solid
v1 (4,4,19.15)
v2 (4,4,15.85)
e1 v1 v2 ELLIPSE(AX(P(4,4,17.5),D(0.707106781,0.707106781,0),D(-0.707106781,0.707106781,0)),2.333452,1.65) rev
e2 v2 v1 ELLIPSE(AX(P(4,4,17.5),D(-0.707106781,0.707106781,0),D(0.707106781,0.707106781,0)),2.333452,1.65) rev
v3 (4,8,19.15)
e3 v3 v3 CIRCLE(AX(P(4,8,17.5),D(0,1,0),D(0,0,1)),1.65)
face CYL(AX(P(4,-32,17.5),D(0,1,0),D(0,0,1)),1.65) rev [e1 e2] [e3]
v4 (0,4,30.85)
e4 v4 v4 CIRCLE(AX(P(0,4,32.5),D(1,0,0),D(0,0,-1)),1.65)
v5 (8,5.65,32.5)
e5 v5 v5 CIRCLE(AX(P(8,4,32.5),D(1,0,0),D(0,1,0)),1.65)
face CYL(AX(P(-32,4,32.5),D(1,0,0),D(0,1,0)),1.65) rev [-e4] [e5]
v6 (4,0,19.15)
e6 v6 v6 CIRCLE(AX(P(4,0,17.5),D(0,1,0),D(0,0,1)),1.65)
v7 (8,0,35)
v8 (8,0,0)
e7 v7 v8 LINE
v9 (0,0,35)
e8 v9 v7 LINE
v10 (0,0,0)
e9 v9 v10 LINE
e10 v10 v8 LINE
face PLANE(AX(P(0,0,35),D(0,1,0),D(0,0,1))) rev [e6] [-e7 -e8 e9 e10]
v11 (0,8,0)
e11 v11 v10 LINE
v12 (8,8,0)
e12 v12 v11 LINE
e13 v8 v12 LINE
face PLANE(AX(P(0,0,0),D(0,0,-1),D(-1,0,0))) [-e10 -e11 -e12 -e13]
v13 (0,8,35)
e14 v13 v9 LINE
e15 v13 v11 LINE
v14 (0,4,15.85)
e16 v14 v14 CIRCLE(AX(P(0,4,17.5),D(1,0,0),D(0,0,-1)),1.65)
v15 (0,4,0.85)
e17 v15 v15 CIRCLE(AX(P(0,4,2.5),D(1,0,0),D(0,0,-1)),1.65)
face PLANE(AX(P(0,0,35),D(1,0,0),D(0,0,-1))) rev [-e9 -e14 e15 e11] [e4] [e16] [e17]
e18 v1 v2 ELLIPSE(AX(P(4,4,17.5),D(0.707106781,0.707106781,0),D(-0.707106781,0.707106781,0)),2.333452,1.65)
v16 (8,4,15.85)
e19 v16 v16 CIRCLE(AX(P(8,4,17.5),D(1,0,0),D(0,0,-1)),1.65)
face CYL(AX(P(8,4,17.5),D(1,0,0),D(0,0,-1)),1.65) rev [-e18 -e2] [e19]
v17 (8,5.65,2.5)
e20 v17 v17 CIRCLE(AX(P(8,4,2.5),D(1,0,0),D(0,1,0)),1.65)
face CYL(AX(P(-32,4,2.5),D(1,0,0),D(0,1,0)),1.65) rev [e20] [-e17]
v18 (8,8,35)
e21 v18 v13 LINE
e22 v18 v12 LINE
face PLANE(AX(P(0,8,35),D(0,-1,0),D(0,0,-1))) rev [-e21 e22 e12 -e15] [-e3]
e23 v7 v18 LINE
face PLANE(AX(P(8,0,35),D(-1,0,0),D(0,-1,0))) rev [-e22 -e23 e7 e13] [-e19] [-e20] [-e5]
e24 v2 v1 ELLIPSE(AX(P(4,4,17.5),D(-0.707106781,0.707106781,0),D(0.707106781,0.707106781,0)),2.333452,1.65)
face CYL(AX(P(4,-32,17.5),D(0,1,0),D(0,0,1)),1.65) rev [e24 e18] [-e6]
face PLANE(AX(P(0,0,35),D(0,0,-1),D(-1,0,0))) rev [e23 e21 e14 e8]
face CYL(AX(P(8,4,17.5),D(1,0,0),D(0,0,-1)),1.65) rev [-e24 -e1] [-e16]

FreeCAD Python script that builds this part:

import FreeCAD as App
import Part
import Sketcher

V = App.Vector

doc = App.newDocument("Part")
body = doc.addObject("PartDesign::Body", "Body")

# Sketch on XY plane
sketch1 = body.newObject("Sketcher::SketchObject", "Sketch")
sketch1.AttachmentSupport = (doc.getObject("XY_Plane"), [""])
sketch1.MapMode = "FlatFace"
sketch1.addGeometry(Part.LineSegment(V(0, 8, 0), V(0, 0, 0)), False)
sketch1.addGeometry(Part.LineSegment(V(0, 0, 0), V(8, 0, 0)), False)
sketch1.addGeometry(Part.LineSegment(V(8, 0, 0), V(8, 8, 0)), False)
sketch1.addGeometry(Part.LineSegment(V(8, 8, 0), V(0, 8, 0)), False)
sketch1.addConstraint(Sketcher.Constraint("Coincident", 0, 2, 1, 1))
sketch1.addConstraint(Sketcher.Constraint("Coincident", 1, 2, 2, 1))
sketch1.addConstraint(Sketcher.Constraint("Coincident", 2, 2, 3, 1))
sketch1.addConstraint(Sketcher.Constraint("Coincident", 3, 2, 0, 1))
sketch1.addConstraint(Sketcher.Constraint("Vertical", 0))
sketch1.addConstraint(Sketcher.Constraint("Horizontal", 1))
sketch1.addConstraint(Sketcher.Constraint("Vertical", 2))
sketch1.addConstraint(Sketcher.Constraint("Horizontal", 3))
sketch1.addConstraint(Sketcher.Constraint("Coincident", 0, 2, -1, 1))
sketch1.addConstraint(Sketcher.Constraint("Equal", 3, 0))
sketch1.addConstraint(Sketcher.Constraint("DistanceX", 1, 1, 1, 2, 8.0))
pad1 = body.newObject("PartDesign::Pad", "Pad")
pad1.Profile = sketch1
pad1.Length = 35

# Sketch on YZ plane
sketch2 = body.newObject("Sketcher::SketchObject", "Sketch001")
sketch2.AttachmentSupport = (doc.getObject("YZ_Plane"), [""])
sketch2.MapMode = "FlatFace"
sketch2.AttachmentOffset = App.Placement(V(0, 0, 8), App.Rotation())
sketch2.addGeometry(Part.Circle(V(4, 32.5, 0), V(0, 0, 1), 1.65), False)
sketch2.addGeometry(Part.Circle(V(4, 2.5, 0), V(0, 0, 1), 1.65), False)
sketch2.addConstraint(Sketcher.Constraint("Equal", 0, 1))
sketch2.addConstraint(Sketcher.Constraint("Vertical", 0, 3, 1, 3))
sketch2.addConstraint(Sketcher.Constraint("Diameter", 0, 3.3))
sketch2.addConstraint(Sketcher.Constraint("DistanceX", -1, 1, 0, 3, 4.0))
sketch2.addConstraint(Sketcher.Constraint("DistanceY", 1, 3, 0, 3, 30.0))
sketch2.addConstraint(Sketcher.Constraint("DistanceY", -1, 1, 0, 3, 32.5))
pocket1 = body.newObject("PartDesign::Pocket", "Pocket")
pocket1.Profile = sketch2
pocket1.Length = 40

# Sketch on XZ plane
sketch3 = body.newObject("Sketcher::SketchObject", "Sketch002")
sketch3.AttachmentSupport = (doc.getObject("XZ_Plane"), [""])
sketch3.MapMode = "FlatFace"
sketch3.AttachmentOffset = App.Placement(V(0, 0, -8), App.Rotation())
sketch3.addGeometry(Part.Circle(V(4, 17.5, 0), V(0, 0, 1), 1.65), False)
sketch3.addConstraint(Sketcher.Constraint("Diameter", 0, 3.3))
sketch3.addConstraint(Sketcher.Constraint("DistanceX", -1, 1, 0, 3, 4.0))
sketch3.addConstraint(Sketcher.Constraint("DistanceY", -1, 1, 0, 3, 17.5))
pocket2 = body.newObject("PartDesign::Pocket", "Pocket001")
pocket2.Profile = sketch3
pocket2.Length = 40
pocket2.Reversed = True

# Sketch on YZ plane
sketch4 = body.newObject("Sketcher::SketchObject", "Sketch003")
sketch4.AttachmentSupport = (doc.getObject("YZ_Plane"), [""])
sketch4.MapMode = "FlatFace"
sketch4.AttachmentOffset = App.Placement(V(0, 0, 8), App.Rotation())
sketch4.addGeometry(Part.Circle(V(4, 17.5, 0), V(0, 0, 1), 1.5), False)
sketch4.addConstraint(Sketcher.Constraint("Diameter", 0, 3.0))
sketch4.addConstraint(Sketcher.Constraint("DistanceX", -1, 1, 0, 3, 4.0))
sketch4.addConstraint(Sketcher.Constraint("DistanceY", -1, 1, 0, 3, 17.5))
pocket3 = body.newObject("PartDesign::Pocket", "Pocket002")
pocket3.Profile = sketch4
pocket3.Type = "ThroughAll"

# Sketch on YZ plane
sketch5 = body.newObject("Sketcher::SketchObject", "Sketch004")
sketch5.AttachmentSupport = (doc.getObject("YZ_Plane"), [""])
sketch5.MapMode = "FlatFace"
sketch5.AttachmentOffset = App.Placement(V(0, 0, 8), App.Rotation())
sketch5.addGeometry(Part.Circle(V(4, 17.5, 0), V(0, 0, 1), 1.65), False)
sketch5.addConstraint(Sketcher.Constraint("Diameter", 0, 3.3))
sketch5.addConstraint(Sketcher.Constraint("DistanceX", -1, 1, 0, 3, 4.0))
sketch5.addConstraint(Sketcher.Constraint("DistanceY", -1, 1, 0, 3, 17.5))
doc.recompute()
hole = body.newObject("PartDesign::Hole", "Hole")
hole.Profile = sketch5
hole.ThreadType = "None"
hole.Diameter = 3.3
hole.DepthType = "ThroughAll"

doc.recompute()
